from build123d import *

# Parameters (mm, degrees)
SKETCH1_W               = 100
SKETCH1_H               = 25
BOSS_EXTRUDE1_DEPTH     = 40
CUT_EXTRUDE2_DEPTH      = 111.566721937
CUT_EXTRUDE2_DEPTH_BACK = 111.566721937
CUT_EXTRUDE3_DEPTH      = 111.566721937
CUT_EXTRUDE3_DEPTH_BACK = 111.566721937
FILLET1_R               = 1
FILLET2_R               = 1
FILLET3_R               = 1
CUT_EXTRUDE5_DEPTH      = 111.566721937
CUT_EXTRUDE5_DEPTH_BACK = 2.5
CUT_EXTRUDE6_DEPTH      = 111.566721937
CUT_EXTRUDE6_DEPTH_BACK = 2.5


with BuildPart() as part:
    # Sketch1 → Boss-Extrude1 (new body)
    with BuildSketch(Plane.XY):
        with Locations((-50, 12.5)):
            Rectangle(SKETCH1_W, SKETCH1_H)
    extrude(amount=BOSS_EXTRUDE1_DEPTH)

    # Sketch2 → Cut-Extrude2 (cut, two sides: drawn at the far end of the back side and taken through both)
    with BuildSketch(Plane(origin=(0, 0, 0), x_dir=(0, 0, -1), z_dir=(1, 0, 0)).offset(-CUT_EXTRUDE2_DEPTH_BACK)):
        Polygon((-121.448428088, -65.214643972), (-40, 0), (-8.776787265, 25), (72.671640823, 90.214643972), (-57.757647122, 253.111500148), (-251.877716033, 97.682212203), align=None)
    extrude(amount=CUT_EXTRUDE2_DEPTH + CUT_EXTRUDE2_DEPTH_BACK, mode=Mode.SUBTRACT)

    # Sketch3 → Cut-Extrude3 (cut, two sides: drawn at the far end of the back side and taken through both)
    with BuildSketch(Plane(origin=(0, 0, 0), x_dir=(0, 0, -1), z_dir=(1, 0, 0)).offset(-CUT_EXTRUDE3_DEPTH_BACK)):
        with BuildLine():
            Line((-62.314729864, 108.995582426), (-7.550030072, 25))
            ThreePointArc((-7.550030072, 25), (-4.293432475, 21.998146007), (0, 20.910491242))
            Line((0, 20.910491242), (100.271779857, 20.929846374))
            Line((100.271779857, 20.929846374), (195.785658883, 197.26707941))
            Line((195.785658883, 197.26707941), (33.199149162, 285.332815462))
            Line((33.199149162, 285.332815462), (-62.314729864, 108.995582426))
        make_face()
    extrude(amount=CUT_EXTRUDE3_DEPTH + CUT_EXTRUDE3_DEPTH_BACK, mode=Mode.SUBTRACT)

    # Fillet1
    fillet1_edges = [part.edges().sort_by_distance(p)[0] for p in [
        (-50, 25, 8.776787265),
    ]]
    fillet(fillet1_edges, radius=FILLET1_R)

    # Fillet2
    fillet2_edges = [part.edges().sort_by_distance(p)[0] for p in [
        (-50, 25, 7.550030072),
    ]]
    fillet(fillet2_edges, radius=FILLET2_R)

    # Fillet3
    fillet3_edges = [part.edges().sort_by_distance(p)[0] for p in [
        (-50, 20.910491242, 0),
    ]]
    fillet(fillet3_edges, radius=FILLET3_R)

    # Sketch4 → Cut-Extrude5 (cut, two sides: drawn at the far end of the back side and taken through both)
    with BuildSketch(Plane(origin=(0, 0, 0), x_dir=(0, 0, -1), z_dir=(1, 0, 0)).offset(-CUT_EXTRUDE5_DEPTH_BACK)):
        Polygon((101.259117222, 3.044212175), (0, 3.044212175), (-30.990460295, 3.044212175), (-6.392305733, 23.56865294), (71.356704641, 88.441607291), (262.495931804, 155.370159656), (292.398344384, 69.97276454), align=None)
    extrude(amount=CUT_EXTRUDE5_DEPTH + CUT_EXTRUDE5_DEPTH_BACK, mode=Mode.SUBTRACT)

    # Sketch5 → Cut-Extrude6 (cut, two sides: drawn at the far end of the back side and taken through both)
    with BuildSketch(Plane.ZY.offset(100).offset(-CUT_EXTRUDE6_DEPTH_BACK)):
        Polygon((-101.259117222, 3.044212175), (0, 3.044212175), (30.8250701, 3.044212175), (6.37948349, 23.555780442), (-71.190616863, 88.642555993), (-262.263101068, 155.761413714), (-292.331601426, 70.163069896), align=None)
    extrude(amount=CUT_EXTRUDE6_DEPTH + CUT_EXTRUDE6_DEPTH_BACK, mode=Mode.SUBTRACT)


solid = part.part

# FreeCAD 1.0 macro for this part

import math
import FreeCAD as App
import Part
import Sketcher
from FreeCAD import Vector


def edges_at(feature, points):
    """Names of the edges that pass closest to the given points."""
    edges = feature.Shape.Edges
    near = lambda p: min(range(len(edges)), key=lambda i: edges[i].distToShape(Part.Vertex(*p))[0])
    return sorted({f"Edge{near(p) + 1}" for p in points})

doc = App.newDocument("Part")
body = doc.addObject("PartDesign::Body", "Body")

# Sketch on XY plane
sketch1 = body.newObject("Sketcher::SketchObject", "Sketch")
sketch1.AttachmentSupport = (doc.getObject("XY_Plane"), [""])
sketch1.MapMode = "FlatFace"
sketch1.addGeometry([
    Part.LineSegment(Vector(-100, 25, 0), Vector(-100, 0, 0)),
    Part.LineSegment(Vector(-100, 0, 0), Vector(0, 0, 0)),
    Part.LineSegment(Vector(0, 0, 0), Vector(0, 25, 0)),
    Part.LineSegment(Vector(0, 25, 0), Vector(-100, 25, 0)),
], False)
sketch1.addConstraint([
    Sketcher.Constraint("Coincident", 0, 2, 1, 1),
    Sketcher.Constraint("Coincident", 1, 2, 2, 1),
    Sketcher.Constraint("Coincident", 2, 2, 3, 1),
    Sketcher.Constraint("Coincident", 3, 2, 0, 1),
    Sketcher.Constraint("Vertical", 0),
    Sketcher.Constraint("Horizontal", 1),
    Sketcher.Constraint("Vertical", 2),
    Sketcher.Constraint("Horizontal", 3),
    Sketcher.Constraint("Coincident", 1, 2, -1, 1),
    Sketcher.Constraint("DistanceX", 1, 1, 1, 2, 100.0),
    Sketcher.Constraint("DistanceY", 0, 2, 0, 1, 25.0),
])
pad1 = body.newObject("PartDesign::Pad", "Pad")
pad1.Profile = sketch1
pad1.Length = 40

# Sketch on YZ plane
sketch2 = body.newObject("Sketcher::SketchObject", "Sketch001")
sketch2.AttachmentSupport = (doc.getObject("YZ_Plane"), [""])
sketch2.MapMode = "FlatFace"
sketch2.addGeometry([
    Part.LineSegment(Vector(-65, 121, 0), Vector(0, 40, 0)),  # 0
    Part.LineSegment(Vector(0, 40, 0), Vector(25, 9, 0)),  # 1
    Part.LineSegment(Vector(25, 9, 0), Vector(90, -73, 0)),  # 2
    Part.LineSegment(Vector(90, -73, 0), Vector(253, 58, 0)),  # 3
    Part.LineSegment(Vector(253, 58, 0), Vector(98, 252, 0)),  # 4
    Part.LineSegment(Vector(98, 252, 0), Vector(-65, 121, 0)),  # 5
], False)
sketch2.addConstraint([
    Sketcher.Constraint("Coincident", 0, 2, 1, 1),
    Sketcher.Constraint("Coincident", 1, 2, 2, 1),
    Sketcher.Constraint("Coincident", 2, 2, 3, 1),
    Sketcher.Constraint("Coincident", 3, 2, 4, 1),
    Sketcher.Constraint("Coincident", 4, 2, 5, 1),
    Sketcher.Constraint("Coincident", 5, 2, 0, 1),
    Sketcher.Constraint("PointOnObject", 0, 2, -2),
    Sketcher.Constraint("Parallel", 0, 1),
    Sketcher.Constraint("Parallel", 1, 2),
    Sketcher.Constraint("Perpendicular", 2, 3),
    Sketcher.Constraint("Perpendicular", 3, 4),
    Sketcher.Constraint("Perpendicular", 4, 5),
    Sketcher.Constraint("Equal", 0, 2),
    Sketcher.Constraint("DistanceY", -1, 1, 0, 2, 40.0),
    Sketcher.Constraint("DistanceX", -1, 1, 1, 2, 25.0),
    Sketcher.Constraint("DistanceX", -1, 1, 3, 2, 253.1115),
    Sketcher.Constraint("Distance", 0, 104.339811),
    Sketcher.Constraint("DistanceY", 2, 2, -1, 1, 72.671641),
])
pocket1 = body.newObject("PartDesign::Pocket", "Pocket")
pocket1.Profile = sketch2
pocket1.Type = "ThroughAll"
pocket1.Midplane = True

# Sketch on YZ plane
sketch3 = body.newObject("Sketcher::SketchObject", "Sketch002")
sketch3.AttachmentSupport = (doc.getObject("YZ_Plane"), [""])
sketch3.MapMode = "FlatFace"
sketch3.addGeometry([
    Part.LineSegment(Vector(109, 62, 0), Vector(25, 8, 0)),  # 0
    Part.ArcOfCircle(Part.Circle(Vector(30, 0, 0), Vector(0, 0, 1), 9), math.radians(123), math.radians(180)),  # 1
    Part.LineSegment(Vector(21, 0, 0), Vector(21, -100, 0)),  # 2
    Part.LineSegment(Vector(21, -100, 0), Vector(197, -196, 0)),  # 3
    Part.LineSegment(Vector(197, -196, 0), Vector(285, -33, 0)),  # 4
    Part.LineSegment(Vector(285, -33, 0), Vector(109, 62, 0)),  # 5
], False)
sketch3.addConstraint([
    Sketcher.Constraint("Tangent", 0, 2, 1, 1),
    Sketcher.Constraint("Tangent", 1, 2, 2, 1),
    Sketcher.Constraint("Coincident", 2, 2, 3, 1),
    Sketcher.Constraint("Coincident", 3, 2, 4, 1),
    Sketcher.Constraint("Coincident", 4, 2, 5, 1),
    Sketcher.Constraint("Coincident", 5, 2, 0, 1),
    Sketcher.Constraint("PointOnObject", 1, 2, -1),
    Sketcher.Constraint("Perpendicular", 3, 4),
    Sketcher.Constraint("Perpendicular", 4, 5),
    Sketcher.Constraint("Equal", 0, 2),
    Sketcher.Constraint("Equal", 3, 5),
    Sketcher.Constraint("DistanceX", -1, 1, 0, 2, 25.0),
    Sketcher.Constraint("Radius", 1, 9.010957),
    Sketcher.Constraint("DistanceX", 2, 2, 1, 3, 8.991601),
    Sketcher.Constraint("DistanceY", 3, 2, 1, 3, 195.787398),
    Sketcher.Constraint("DistanceY", 0, 2, 5, 2, 54.7647),
    Sketcher.Constraint("Distance", 0, 100.271782),
])
pocket2 = body.newObject("PartDesign::Pocket", "Pocket001")
pocket2.Profile = sketch3
pocket2.Type = "ThroughAll"
pocket2.Midplane = True
doc.recompute()

fillet = body.newObject("PartDesign::Fillet", "Fillet")
fillet.Base = (pocket2, edges_at(pocket2, [(-50, 25, 8.777)]))
fillet.Radius = 1
doc.recompute()

fillet2 = body.newObject("PartDesign::Fillet", "Fillet001")
fillet2.Base = (fillet, edges_at(fillet, [(-50, 25, 7.55)]))
fillet2.Radius = 1
doc.recompute()

fillet3 = body.newObject("PartDesign::Fillet", "Fillet002")
fillet3.Base = (fillet2, edges_at(fillet2, [(-50, 20.91, 0)]))
fillet3.Radius = 1

# Sketch on YZ plane
sketch4 = body.newObject("Sketcher::SketchObject", "Sketch003")
sketch4.AttachmentSupport = (doc.getObject("YZ_Plane"), [""])
sketch4.MapMode = "FlatFace"
sketch4.addGeometry([
    Part.LineSegment(Vector(3, 31, 0), Vector(3, -101, 0)),  # 0
    Part.LineSegment(Vector(3, -101, 0), Vector(70, -292, 0)),  # 1
    Part.LineSegment(Vector(70, -292, 0), Vector(155, -262, 0)),  # 2
    Part.LineSegment(Vector(155, -262, 0), Vector(88, -71, 0)),  # 3
    Part.LineSegment(Vector(88, -71, 0), Vector(24, 6, 0)),  # 4
    Part.LineSegment(Vector(24, 6, 0), Vector(3, 31, 0)),  # 5
], False)
sketch4.addConstraint([
    Sketcher.Constraint("Coincident", 0, 2, 1, 1),
    Sketcher.Constraint("Coincident", 1, 2, 2, 1),
    Sketcher.Constraint("Coincident", 2, 2, 3, 1),
    Sketcher.Constraint("Coincident", 3, 2, 4, 1),
    Sketcher.Constraint("Coincident", 4, 2, 5, 1),
    Sketcher.Constraint("Coincident", 5, 2, 0, 1),
    Sketcher.Constraint("Vertical", 0),
    Sketcher.Constraint("Perpendicular", 1, 2),
    Sketcher.Constraint("Perpendicular", 2, 3),
    Sketcher.Constraint("Parallel", 4, 5),
    Sketcher.Constraint("Equal", 1, 3),
    Sketcher.Constraint("Distance", 2, 90.481321),
    Sketcher.Constraint("Distance", 5, 32.036259),
    Sketcher.Constraint("DistanceY", 0, 2, 0, 1, 132.249578),
    Sketcher.Constraint("DistanceX", -1, 1, 2, 2, 155.37016),
    Sketcher.Constraint("DistanceY", 2, 2, -1, 1, 262.495932),
    Sketcher.Constraint("DistanceY", -1, 1, 5, 2, 30.99046),
    Sketcher.Constraint("DistanceY", 1, 2, 3, 2, 221.04164),
])
pocket3 = body.newObject("PartDesign::Pocket", "Pocket002")
pocket3.Profile = sketch4
pocket3.Type = "TwoLengths"
pocket3.Length = 111.566722
pocket3.Length2 = 2.5
pocket3.Reversed = True

# Sketch on YZ plane
sketch5 = body.newObject("Sketcher::SketchObject", "Sketch004")
sketch5.AttachmentSupport = (doc.getObject("YZ_Plane"), [""])
sketch5.MapMode = "FlatFace"
sketch5.AttachmentOffset = App.Placement(Vector(0, 0, -100), App.Rotation())
sketch5.addGeometry([
    Part.LineSegment(Vector(3, -101, 0), Vector(3, 31, 0)),  # 0
    Part.LineSegment(Vector(3, 31, 0), Vector(24, 6, 0)),  # 1
    Part.LineSegment(Vector(24, 6, 0), Vector(89, -71, 0)),  # 2
    Part.LineSegment(Vector(89, -71, 0), Vector(156, -262, 0)),  # 3
    Part.LineSegment(Vector(156, -262, 0), Vector(70, -292, 0)),  # 4
    Part.LineSegment(Vector(70, -292, 0), Vector(3, -101, 0)),  # 5
], False)
sketch5.addConstraint([
    Sketcher.Constraint("Coincident", 0, 2, 1, 1),
    Sketcher.Constraint("Coincident", 1, 2, 2, 1),
    Sketcher.Constraint("Coincident", 2, 2, 3, 1),
    Sketcher.Constraint("Coincident", 3, 2, 4, 1),
    Sketcher.Constraint("Coincident", 4, 2, 5, 1),
    Sketcher.Constraint("Coincident", 5, 2, 0, 1),
    Sketcher.Constraint("Vertical", 0),
    Sketcher.Constraint("Parallel", 1, 2),
    Sketcher.Constraint("Perpendicular", 3, 4),
    Sketcher.Constraint("Perpendicular", 4, 5),
    Sketcher.Constraint("Equal", 3, 5),
    Sketcher.Constraint("DistanceY", 3, 2, -1, 1, 262.263101),
    Sketcher.Constraint("DistanceY", 4, 2, -1, 1, 292.331601),
    Sketcher.Constraint("DistanceY", 2, 2, 1, 2, 77.5701),
    Sketcher.Constraint("DistanceX", 0, 2, 3, 2, 152.717202),
    Sketcher.Constraint("DistanceY", 0, 1, 0, 2, 132.084187),
    Sketcher.Constraint("DistanceY", -1, 1, 0, 2, 30.82507),
    Sketcher.Constraint("DistanceX", -1, 1, 1, 2, 23.55578),
])
pocket4 = body.newObject("PartDesign::Pocket", "Pocket003")
pocket4.Profile = sketch5
pocket4.Type = "TwoLengths"
pocket4.Length = 111.566722
pocket4.Length2 = 2.5

doc.recompute()
